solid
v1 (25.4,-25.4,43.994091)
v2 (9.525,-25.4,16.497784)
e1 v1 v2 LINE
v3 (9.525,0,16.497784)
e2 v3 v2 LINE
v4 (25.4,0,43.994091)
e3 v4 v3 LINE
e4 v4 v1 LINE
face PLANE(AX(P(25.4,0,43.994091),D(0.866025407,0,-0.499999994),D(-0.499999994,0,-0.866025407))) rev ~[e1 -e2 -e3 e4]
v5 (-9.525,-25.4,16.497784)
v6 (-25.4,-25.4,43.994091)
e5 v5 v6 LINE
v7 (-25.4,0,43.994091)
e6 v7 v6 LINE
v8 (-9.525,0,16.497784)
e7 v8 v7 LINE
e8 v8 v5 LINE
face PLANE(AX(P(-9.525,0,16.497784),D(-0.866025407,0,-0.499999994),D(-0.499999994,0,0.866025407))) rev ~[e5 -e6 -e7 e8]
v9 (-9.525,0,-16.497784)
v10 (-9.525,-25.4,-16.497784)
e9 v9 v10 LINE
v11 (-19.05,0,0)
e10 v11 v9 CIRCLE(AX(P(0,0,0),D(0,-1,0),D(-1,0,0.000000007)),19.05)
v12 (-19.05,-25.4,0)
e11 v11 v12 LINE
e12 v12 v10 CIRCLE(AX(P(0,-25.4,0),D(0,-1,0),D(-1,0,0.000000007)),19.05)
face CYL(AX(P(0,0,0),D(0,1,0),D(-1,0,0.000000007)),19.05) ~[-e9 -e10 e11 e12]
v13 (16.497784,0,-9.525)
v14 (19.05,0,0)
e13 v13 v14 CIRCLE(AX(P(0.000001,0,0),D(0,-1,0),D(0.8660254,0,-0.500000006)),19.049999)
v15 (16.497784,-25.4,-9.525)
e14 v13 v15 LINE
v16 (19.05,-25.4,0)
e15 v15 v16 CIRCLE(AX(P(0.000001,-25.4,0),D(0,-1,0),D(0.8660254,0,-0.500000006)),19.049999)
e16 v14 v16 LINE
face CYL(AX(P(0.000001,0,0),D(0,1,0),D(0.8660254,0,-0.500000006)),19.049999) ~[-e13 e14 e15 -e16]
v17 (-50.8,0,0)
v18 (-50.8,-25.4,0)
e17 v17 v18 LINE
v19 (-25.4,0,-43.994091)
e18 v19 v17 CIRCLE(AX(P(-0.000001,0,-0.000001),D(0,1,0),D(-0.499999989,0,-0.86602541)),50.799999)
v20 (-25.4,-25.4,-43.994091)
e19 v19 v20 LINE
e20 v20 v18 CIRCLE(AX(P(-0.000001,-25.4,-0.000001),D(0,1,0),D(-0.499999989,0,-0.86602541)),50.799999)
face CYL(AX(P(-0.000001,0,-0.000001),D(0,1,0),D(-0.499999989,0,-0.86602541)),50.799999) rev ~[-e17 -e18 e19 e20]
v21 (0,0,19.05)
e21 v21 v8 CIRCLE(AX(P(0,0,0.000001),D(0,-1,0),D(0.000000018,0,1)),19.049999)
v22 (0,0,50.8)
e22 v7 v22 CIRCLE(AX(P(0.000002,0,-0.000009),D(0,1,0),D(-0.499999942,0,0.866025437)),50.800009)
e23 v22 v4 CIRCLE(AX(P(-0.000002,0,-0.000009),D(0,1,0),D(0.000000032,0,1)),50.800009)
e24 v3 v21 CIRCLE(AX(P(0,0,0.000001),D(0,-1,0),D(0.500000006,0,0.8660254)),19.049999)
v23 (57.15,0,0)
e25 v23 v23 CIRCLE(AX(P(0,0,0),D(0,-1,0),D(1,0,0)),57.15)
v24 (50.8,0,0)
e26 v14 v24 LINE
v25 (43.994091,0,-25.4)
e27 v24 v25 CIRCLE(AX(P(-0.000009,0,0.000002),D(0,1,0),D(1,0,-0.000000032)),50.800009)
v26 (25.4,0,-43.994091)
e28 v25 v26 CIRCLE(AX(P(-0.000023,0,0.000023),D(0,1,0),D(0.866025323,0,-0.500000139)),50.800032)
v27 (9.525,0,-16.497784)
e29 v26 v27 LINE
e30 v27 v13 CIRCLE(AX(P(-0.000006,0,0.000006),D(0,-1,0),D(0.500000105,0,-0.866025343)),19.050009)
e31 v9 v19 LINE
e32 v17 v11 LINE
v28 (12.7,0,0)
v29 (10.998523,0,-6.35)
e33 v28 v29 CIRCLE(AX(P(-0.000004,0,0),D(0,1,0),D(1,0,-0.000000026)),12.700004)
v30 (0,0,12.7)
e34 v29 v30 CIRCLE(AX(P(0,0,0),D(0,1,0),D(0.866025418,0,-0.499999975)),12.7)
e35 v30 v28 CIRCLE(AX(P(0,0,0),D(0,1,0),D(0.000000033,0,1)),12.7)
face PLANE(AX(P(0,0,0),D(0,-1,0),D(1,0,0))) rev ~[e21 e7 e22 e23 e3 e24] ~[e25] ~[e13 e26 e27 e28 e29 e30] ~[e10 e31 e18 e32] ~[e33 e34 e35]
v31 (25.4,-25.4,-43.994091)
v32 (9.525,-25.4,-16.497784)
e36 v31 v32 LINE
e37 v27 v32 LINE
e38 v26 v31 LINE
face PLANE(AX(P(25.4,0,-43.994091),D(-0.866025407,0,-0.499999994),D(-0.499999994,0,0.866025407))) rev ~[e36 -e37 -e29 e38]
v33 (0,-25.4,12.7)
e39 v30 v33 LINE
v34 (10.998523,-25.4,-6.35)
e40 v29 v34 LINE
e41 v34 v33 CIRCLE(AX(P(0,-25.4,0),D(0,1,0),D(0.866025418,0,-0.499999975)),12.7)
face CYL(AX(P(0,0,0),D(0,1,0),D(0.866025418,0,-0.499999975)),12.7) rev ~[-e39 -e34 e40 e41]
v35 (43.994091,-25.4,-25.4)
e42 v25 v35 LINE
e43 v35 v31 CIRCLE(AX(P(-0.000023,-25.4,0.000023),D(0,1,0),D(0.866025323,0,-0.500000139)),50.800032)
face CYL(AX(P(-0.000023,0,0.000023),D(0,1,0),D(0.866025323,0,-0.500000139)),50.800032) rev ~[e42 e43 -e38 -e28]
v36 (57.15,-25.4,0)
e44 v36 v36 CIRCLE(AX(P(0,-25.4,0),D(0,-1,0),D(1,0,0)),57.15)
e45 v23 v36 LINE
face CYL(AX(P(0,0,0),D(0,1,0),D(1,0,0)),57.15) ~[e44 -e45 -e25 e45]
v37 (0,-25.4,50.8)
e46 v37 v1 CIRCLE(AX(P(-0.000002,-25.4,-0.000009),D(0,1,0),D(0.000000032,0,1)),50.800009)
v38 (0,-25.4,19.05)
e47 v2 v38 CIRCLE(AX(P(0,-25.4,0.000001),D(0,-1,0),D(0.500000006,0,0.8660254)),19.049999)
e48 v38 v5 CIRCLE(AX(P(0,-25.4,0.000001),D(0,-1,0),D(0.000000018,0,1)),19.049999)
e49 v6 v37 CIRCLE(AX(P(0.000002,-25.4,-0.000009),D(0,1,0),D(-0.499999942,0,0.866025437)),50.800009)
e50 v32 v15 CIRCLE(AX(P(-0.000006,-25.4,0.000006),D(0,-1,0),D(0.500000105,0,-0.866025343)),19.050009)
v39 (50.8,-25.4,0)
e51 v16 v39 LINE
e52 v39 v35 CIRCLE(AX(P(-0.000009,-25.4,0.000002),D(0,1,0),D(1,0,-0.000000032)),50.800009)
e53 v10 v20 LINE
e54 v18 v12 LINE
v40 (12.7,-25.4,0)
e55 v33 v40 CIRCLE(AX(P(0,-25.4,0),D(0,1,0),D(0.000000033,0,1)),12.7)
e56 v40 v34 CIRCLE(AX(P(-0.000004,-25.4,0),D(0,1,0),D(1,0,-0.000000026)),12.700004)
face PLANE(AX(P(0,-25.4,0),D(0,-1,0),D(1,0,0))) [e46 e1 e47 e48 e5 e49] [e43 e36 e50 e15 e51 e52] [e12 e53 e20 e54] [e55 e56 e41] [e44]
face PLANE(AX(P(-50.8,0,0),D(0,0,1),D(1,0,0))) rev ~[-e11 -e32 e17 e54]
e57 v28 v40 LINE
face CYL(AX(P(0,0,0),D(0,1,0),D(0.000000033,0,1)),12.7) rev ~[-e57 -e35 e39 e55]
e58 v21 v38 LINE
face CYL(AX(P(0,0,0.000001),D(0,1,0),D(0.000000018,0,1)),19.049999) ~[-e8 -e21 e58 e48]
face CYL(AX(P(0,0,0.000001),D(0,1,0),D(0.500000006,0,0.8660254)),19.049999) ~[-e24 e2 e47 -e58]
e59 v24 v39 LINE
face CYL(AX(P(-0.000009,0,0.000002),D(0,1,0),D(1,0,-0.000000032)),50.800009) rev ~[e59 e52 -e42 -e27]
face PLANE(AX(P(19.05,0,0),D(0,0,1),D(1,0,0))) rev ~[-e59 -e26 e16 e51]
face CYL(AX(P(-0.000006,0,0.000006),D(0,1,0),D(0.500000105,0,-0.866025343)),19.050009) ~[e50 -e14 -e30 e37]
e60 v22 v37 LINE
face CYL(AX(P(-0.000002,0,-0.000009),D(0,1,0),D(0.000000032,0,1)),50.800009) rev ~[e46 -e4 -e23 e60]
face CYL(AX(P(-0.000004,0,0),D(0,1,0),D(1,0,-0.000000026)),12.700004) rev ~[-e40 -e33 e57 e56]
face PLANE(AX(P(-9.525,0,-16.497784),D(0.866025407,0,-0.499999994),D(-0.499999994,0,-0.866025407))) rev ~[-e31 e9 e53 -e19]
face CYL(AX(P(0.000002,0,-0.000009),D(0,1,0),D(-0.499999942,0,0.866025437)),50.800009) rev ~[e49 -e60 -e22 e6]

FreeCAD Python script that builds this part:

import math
import FreeCAD as App
import Part
import Sketcher

V = App.Vector
Q = App.Units.Quantity

doc = App.newDocument("Part")
body = doc.addObject("PartDesign::Body", "Body")

# Sketch on XZ plane
sketch1 = body.newObject("Sketcher::SketchObject", "Sketch")
sketch1.AttachmentSupport = (doc.getObject("XZ_Plane"), [""])
sketch1.MapMode = "FlatFace"
sketch1.addGeometry([
    Part.Circle(V(0, 0, 0), V(0, 0, 1), 57.15),  # 0
    Part.LineSegment(V(-9.525, -16.497784, 0), V(-25.4, -43.994091, 0)),  # 1
    Part.ArcOfCircle(Part.Circle(V(-0.000001, -0.000001, 0), V(0, 0, 1), 50.799999), math.radians(179.999999), math.radians(240.000001)),  # 2
    Part.LineSegment(V(-50.8, 0, 0), V(-19.05, 0, 0)),  # 3
    Part.ArcOfCircle(Part.Circle(V(0, 0, 0), V(0, 0, 1), 19.05), math.radians(180), math.radians(240)),  # 4
    Part.ArcOfCircle(Part.Circle(V(-0.000004, 0, 0), V(0, 0, 1), 12.700004), math.radians(-29.999992), math.radians(-0.000001)),  # 5
    Part.ArcOfCircle(Part.Circle(V(0, 0, 0), V(0, 0, 1), 12.7), math.radians(90), math.radians(330.000002)),  # 6
    Part.ArcOfCircle(Part.Circle(V(0, 0, 0), V(0, 0, 1), 12.7), math.radians(0.000002), math.radians(89.999998)),  # 7
    Part.LineSegment(V(25.4, -43.994091, 0), V(9.525, -16.497784, 0)),  # 8
    Part.ArcOfCircle(Part.Circle(V(-0.000006, 0.000006, 0), V(0, 0, 1), 19.050009), math.radians(-59.999993), math.radians(-30.000007)),  # 9
    Part.ArcOfCircle(Part.Circle(V(0.000001, 0, 0), V(0, 0, 1), 19.049999), math.radians(-30), math.radians(0.000001)),  # 10
    Part.LineSegment(V(19.05, 0, 0), V(50.8, 0, 0)),  # 11
    Part.ArcOfCircle(Part.Circle(V(-0.000009, 0.000002, 0), V(0, 0, 1), 50.800009), math.radians(-29.999996), math.radians(-0.000002)),  # 12
    Part.ArcOfCircle(Part.Circle(V(-0.000023, 0.000023, 0), V(0, 0, 1), 50.800032), math.radians(-59.999991), math.radians(-30.000009)),  # 13
    Part.LineSegment(V(25.4, 43.994091, 0), V(9.525, 16.497784, 0)),  # 14
    Part.ArcOfCircle(Part.Circle(V(0, 0.000001, 0), V(0, 0, 1), 19.049999), math.radians(60), math.radians(90.000001)),  # 15
    Part.ArcOfCircle(Part.Circle(V(0, 0.000001, 0), V(0, 0, 1), 19.049999), math.radians(89.999999), math.radians(120)),  # 16
    Part.LineSegment(V(-9.525, 16.497784, 0), V(-25.4, 43.994091, 0)),  # 17
    Part.ArcOfCircle(Part.Circle(V(0.000002, -0.000009, 0), V(0, 0, 1), 50.800009), math.radians(90.000002), math.radians(119.999996)),  # 18
    Part.ArcOfCircle(Part.Circle(V(-0.000002, -0.000009, 0), V(0, 0, 1), 50.800009), math.radians(60.000004), math.radians(89.999998)),  # 19
], False)
sketch1.addConstraint([
    Sketcher.Constraint("Coincident", 1, 2, 2, 2),
    Sketcher.Constraint("Coincident", 2, 1, 3, 1),
    Sketcher.Constraint("Coincident", 3, 2, 4, 1),
    Sketcher.Constraint("Coincident", 4, 2, 1, 1),
    Sketcher.Constraint("Coincident", 5, 1, 6, 2),
    Sketcher.Constraint("Coincident", 6, 1, 7, 2),
    Sketcher.Constraint("Coincident", 7, 1, 5, 2),
    Sketcher.Constraint("Coincident", 8, 2, 9, 1),
    Sketcher.Constraint("Coincident", 9, 2, 10, 1),
    Sketcher.Constraint("Coincident", 10, 2, 11, 1),
    Sketcher.Constraint("Coincident", 11, 2, 12, 2),
    Sketcher.Constraint("Coincident", 12, 1, 13, 2),
    Sketcher.Constraint("Coincident", 13, 1, 8, 1),
    Sketcher.Constraint("Coincident", 14, 2, 15, 1),
    Sketcher.Constraint("Coincident", 15, 2, 16, 1),
    Sketcher.Constraint("Coincident", 16, 2, 17, 1),
    Sketcher.Constraint("Coincident", 17, 2, 18, 2),
    Sketcher.Constraint("Coincident", 18, 1, 19, 2),
    Sketcher.Constraint("Coincident", 19, 1, 14, 1),
    Sketcher.Constraint("Horizontal", 3),
    Sketcher.Constraint("Horizontal", 11),
    Sketcher.Constraint("Coincident", 0, 3, -1, 1),
    Sketcher.Constraint("Coincident", 2, 3, -1, 1),
    Sketcher.Constraint("Coincident", 4, 3, -1, 1),
    Sketcher.Constraint("Coincident", 5, 3, -1, 1),
    Sketcher.Constraint("Coincident", 6, 3, -1, 1),
    Sketcher.Constraint("Coincident", 9, 3, -1, 1),
    Sketcher.Constraint("Coincident", 10, 3, -1, 1),
    Sketcher.Constraint("Coincident", 12, 3, -1, 1),
    Sketcher.Constraint("Coincident", 15, 3, -1, 1),
    Sketcher.Constraint("Coincident", 16, 3, -1, 1),
    Sketcher.Constraint("Coincident", 18, 3, -1, 1),
    Sketcher.Constraint("Coincident", 19, 3, -1, 1),
    Sketcher.Constraint("PointOnObject", 2, 1, -1),
    Sketcher.Constraint("PointOnObject", 6, 1, -2),
    Sketcher.Constraint("PointOnObject", 7, 1, -1),
    Sketcher.Constraint("PointOnObject", 10, 2, -1),
    Sketcher.Constraint("PointOnObject", 15, 2, -2),
    Sketcher.Constraint("PointOnObject", 18, 1, -2),
    Sketcher.Constraint("Radius", 2, Q("2 in")),
    Sketcher.Constraint("Diameter", 0, Q("4.5 in")),
    Sketcher.Constraint("Radius", 5, Q("0.5000001 in")),
    Sketcher.Constraint("Radius", 7, Q("0.5 in")),
    Sketcher.Constraint("Radius", 4, Q("0.75 in")),
    Sketcher.Constraint("Radius", 10, Q("0.75 in")),
    Sketcher.Constraint("Radius", 15, Q("0.75 in")),
    Sketcher.Constraint("DistanceX", 1, 2, -1, 1, Q("1 in")),
    Sketcher.Constraint("DistanceX", -1, 1, 11, 2, Q("2 in")),
    Sketcher.Constraint("DistanceY", 12, 1, -1, 1, Q("1 in")),
    Sketcher.Constraint("DistanceX", -1, 1, 13, 1, Q("1 in")),
    Sketcher.Constraint("DistanceX", 17, 2, -1, 1, Q("1 in")),
    Sketcher.Constraint("DistanceY", -1, 1, 18, 1, Q("2 in")),
    Sketcher.Constraint("DistanceX", -1, 1, 19, 1, Q("1 in")),
    Sketcher.Constraint("Distance", 8, Q("1.25 in")),
    Sketcher.Constraint("DistanceY", 5, 1, -1, 1, Q("0.25 in")),
    Sketcher.Constraint("DistanceX", 4, 2, -1, 1, Q("0.375 in")),
    Sketcher.Constraint("DistanceX", -1, 1, 8, 2, Q("0.375 in")),
    Sketcher.Constraint("DistanceY", 9, 2, -1, 1, Q("0.375 in")),
    Sketcher.Constraint("DistanceX", -1, 1, 14, 2, Q("0.375 in")),
    Sketcher.Constraint("DistanceX", 16, 2, -1, 1, Q("0.375 in")),
    Sketcher.Constraint("Radius", 13, Q("50.800032 mm")),
])
pad1 = body.newObject("PartDesign::Pad", "Pad")
pad1.Profile = sketch1
pad1.Length = Q("1 in")

doc.recompute()
